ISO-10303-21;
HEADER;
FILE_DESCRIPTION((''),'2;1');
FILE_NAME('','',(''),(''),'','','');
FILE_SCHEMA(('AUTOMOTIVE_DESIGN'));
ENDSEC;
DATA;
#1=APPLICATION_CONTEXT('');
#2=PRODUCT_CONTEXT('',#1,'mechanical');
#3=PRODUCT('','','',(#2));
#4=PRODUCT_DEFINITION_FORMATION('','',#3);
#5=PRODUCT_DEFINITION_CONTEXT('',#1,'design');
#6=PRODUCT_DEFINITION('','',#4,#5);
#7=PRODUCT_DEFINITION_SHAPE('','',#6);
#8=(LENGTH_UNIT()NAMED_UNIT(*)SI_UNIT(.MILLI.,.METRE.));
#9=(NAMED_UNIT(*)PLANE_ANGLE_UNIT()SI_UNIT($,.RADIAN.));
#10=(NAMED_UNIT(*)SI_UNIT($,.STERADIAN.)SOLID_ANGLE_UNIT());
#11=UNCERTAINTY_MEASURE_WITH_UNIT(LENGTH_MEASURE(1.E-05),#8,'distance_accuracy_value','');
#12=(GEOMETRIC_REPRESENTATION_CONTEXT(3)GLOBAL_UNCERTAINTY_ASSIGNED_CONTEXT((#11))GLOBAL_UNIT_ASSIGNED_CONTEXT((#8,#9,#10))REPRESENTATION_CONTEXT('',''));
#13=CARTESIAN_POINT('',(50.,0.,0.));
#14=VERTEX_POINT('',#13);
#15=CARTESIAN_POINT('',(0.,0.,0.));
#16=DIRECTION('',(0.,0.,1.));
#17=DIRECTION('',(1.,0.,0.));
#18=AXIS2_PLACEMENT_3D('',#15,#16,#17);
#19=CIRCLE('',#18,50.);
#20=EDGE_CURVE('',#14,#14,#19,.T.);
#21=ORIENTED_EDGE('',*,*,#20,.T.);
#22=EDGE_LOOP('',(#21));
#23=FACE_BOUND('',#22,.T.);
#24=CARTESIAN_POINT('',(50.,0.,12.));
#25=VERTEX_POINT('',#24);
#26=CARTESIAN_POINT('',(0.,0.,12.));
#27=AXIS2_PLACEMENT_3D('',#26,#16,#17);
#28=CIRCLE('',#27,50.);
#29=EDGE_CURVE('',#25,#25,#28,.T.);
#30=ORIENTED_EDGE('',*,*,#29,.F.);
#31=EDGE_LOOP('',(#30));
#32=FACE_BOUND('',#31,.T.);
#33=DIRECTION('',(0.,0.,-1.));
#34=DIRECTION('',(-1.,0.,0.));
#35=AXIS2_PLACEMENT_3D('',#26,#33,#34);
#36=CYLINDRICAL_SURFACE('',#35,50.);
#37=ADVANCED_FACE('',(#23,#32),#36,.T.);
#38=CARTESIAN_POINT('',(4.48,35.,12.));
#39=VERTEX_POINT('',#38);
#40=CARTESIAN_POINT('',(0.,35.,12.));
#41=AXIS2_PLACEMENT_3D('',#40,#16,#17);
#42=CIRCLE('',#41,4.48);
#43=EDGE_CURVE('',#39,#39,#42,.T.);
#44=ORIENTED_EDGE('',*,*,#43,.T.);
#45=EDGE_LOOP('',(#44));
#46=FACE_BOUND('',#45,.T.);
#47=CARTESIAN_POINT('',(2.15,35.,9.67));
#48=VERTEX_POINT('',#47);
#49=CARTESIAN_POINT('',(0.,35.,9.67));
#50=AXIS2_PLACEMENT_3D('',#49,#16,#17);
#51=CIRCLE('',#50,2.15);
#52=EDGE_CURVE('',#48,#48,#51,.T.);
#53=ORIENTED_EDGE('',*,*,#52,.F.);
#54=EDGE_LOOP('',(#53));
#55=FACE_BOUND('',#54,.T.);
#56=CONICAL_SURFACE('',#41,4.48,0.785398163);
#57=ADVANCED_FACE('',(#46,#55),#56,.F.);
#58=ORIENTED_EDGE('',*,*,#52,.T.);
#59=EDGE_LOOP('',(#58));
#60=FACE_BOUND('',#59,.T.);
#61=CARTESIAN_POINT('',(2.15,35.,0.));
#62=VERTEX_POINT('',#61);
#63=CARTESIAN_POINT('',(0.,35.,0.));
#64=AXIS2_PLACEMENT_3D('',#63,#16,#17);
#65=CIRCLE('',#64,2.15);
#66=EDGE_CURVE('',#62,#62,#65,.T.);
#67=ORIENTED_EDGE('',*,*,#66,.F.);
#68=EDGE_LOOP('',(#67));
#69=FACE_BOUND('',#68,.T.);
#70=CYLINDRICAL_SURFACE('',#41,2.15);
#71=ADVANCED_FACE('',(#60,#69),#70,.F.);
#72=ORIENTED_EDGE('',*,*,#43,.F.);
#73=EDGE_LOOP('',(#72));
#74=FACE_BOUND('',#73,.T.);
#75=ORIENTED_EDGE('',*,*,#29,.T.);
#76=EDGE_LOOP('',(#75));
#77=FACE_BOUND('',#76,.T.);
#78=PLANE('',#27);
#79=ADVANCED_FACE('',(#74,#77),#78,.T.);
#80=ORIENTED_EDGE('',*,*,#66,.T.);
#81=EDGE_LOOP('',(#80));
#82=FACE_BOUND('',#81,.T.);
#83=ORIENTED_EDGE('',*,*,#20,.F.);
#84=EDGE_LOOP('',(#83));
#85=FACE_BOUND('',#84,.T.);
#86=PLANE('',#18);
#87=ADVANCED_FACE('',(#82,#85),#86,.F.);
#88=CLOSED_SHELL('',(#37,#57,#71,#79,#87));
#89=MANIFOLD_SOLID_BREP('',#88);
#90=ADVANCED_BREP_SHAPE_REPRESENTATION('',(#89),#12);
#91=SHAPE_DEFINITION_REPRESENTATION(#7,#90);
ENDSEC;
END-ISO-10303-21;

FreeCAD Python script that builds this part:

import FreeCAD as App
import Part
import Sketcher
from FreeCAD import Vector

doc = App.newDocument("Part")
body = doc.addObject("PartDesign::Body", "Body")

sketch1 = body.newObject("Sketcher::SketchObject", "Sketch")
sketch1.AttachmentSupport = (doc.getObject("XY_Plane"), [""])
sketch1.MapMode = "FlatFace"
sketch1.addGeometry(Part.Circle(Vector(0, 0, 0), Vector(0, 0, 1), 50), False)
sketch1.addConstraint([
    Sketcher.Constraint("Coincident", 0, 3, -1, 1),
    Sketcher.Constraint("Diameter", 0, 100.0),
])
pad1 = body.newObject("PartDesign::Pad", "Pad")
pad1.Profile = sketch1
pad1.Length = 12

sketch2 = body.newObject("Sketcher::SketchObject", "Sketch001")
sketch2.AttachmentSupport = (doc.getObject("XY_Plane"), [""])
sketch2.MapMode = "FlatFace"
sketch2.AttachmentOffset = App.Placement(Vector(0, 0, 12), App.Rotation())
sketch2.addGeometry(Part.Circle(Vector(0, 35, 0), Vector(0, 0, 1), 2.1), False)
sketch2.addConstraint([
    Sketcher.Constraint("PointOnObject", 0, 3, -2),
    Sketcher.Constraint("Diameter", 0, 4.3),
    Sketcher.Constraint("DistanceY", -1, 1, 0, 3, 35.0),
])
doc.recompute()
hole = body.newObject("PartDesign::Hole", "Hole")
hole.Profile = sketch2
hole.ThreadType = "None"
hole.Diameter = 4.3
hole.DepthType = "Dimension"
hole.Depth = 19.5
hole.DrillPoint = "Angled"
hole.DrillPointAngle = 118
hole.HoleCutType = "Countersink"
hole.HoleCutDiameter = 8.96
hole.HoleCutCountersinkAngle = 90

doc.recompute()
